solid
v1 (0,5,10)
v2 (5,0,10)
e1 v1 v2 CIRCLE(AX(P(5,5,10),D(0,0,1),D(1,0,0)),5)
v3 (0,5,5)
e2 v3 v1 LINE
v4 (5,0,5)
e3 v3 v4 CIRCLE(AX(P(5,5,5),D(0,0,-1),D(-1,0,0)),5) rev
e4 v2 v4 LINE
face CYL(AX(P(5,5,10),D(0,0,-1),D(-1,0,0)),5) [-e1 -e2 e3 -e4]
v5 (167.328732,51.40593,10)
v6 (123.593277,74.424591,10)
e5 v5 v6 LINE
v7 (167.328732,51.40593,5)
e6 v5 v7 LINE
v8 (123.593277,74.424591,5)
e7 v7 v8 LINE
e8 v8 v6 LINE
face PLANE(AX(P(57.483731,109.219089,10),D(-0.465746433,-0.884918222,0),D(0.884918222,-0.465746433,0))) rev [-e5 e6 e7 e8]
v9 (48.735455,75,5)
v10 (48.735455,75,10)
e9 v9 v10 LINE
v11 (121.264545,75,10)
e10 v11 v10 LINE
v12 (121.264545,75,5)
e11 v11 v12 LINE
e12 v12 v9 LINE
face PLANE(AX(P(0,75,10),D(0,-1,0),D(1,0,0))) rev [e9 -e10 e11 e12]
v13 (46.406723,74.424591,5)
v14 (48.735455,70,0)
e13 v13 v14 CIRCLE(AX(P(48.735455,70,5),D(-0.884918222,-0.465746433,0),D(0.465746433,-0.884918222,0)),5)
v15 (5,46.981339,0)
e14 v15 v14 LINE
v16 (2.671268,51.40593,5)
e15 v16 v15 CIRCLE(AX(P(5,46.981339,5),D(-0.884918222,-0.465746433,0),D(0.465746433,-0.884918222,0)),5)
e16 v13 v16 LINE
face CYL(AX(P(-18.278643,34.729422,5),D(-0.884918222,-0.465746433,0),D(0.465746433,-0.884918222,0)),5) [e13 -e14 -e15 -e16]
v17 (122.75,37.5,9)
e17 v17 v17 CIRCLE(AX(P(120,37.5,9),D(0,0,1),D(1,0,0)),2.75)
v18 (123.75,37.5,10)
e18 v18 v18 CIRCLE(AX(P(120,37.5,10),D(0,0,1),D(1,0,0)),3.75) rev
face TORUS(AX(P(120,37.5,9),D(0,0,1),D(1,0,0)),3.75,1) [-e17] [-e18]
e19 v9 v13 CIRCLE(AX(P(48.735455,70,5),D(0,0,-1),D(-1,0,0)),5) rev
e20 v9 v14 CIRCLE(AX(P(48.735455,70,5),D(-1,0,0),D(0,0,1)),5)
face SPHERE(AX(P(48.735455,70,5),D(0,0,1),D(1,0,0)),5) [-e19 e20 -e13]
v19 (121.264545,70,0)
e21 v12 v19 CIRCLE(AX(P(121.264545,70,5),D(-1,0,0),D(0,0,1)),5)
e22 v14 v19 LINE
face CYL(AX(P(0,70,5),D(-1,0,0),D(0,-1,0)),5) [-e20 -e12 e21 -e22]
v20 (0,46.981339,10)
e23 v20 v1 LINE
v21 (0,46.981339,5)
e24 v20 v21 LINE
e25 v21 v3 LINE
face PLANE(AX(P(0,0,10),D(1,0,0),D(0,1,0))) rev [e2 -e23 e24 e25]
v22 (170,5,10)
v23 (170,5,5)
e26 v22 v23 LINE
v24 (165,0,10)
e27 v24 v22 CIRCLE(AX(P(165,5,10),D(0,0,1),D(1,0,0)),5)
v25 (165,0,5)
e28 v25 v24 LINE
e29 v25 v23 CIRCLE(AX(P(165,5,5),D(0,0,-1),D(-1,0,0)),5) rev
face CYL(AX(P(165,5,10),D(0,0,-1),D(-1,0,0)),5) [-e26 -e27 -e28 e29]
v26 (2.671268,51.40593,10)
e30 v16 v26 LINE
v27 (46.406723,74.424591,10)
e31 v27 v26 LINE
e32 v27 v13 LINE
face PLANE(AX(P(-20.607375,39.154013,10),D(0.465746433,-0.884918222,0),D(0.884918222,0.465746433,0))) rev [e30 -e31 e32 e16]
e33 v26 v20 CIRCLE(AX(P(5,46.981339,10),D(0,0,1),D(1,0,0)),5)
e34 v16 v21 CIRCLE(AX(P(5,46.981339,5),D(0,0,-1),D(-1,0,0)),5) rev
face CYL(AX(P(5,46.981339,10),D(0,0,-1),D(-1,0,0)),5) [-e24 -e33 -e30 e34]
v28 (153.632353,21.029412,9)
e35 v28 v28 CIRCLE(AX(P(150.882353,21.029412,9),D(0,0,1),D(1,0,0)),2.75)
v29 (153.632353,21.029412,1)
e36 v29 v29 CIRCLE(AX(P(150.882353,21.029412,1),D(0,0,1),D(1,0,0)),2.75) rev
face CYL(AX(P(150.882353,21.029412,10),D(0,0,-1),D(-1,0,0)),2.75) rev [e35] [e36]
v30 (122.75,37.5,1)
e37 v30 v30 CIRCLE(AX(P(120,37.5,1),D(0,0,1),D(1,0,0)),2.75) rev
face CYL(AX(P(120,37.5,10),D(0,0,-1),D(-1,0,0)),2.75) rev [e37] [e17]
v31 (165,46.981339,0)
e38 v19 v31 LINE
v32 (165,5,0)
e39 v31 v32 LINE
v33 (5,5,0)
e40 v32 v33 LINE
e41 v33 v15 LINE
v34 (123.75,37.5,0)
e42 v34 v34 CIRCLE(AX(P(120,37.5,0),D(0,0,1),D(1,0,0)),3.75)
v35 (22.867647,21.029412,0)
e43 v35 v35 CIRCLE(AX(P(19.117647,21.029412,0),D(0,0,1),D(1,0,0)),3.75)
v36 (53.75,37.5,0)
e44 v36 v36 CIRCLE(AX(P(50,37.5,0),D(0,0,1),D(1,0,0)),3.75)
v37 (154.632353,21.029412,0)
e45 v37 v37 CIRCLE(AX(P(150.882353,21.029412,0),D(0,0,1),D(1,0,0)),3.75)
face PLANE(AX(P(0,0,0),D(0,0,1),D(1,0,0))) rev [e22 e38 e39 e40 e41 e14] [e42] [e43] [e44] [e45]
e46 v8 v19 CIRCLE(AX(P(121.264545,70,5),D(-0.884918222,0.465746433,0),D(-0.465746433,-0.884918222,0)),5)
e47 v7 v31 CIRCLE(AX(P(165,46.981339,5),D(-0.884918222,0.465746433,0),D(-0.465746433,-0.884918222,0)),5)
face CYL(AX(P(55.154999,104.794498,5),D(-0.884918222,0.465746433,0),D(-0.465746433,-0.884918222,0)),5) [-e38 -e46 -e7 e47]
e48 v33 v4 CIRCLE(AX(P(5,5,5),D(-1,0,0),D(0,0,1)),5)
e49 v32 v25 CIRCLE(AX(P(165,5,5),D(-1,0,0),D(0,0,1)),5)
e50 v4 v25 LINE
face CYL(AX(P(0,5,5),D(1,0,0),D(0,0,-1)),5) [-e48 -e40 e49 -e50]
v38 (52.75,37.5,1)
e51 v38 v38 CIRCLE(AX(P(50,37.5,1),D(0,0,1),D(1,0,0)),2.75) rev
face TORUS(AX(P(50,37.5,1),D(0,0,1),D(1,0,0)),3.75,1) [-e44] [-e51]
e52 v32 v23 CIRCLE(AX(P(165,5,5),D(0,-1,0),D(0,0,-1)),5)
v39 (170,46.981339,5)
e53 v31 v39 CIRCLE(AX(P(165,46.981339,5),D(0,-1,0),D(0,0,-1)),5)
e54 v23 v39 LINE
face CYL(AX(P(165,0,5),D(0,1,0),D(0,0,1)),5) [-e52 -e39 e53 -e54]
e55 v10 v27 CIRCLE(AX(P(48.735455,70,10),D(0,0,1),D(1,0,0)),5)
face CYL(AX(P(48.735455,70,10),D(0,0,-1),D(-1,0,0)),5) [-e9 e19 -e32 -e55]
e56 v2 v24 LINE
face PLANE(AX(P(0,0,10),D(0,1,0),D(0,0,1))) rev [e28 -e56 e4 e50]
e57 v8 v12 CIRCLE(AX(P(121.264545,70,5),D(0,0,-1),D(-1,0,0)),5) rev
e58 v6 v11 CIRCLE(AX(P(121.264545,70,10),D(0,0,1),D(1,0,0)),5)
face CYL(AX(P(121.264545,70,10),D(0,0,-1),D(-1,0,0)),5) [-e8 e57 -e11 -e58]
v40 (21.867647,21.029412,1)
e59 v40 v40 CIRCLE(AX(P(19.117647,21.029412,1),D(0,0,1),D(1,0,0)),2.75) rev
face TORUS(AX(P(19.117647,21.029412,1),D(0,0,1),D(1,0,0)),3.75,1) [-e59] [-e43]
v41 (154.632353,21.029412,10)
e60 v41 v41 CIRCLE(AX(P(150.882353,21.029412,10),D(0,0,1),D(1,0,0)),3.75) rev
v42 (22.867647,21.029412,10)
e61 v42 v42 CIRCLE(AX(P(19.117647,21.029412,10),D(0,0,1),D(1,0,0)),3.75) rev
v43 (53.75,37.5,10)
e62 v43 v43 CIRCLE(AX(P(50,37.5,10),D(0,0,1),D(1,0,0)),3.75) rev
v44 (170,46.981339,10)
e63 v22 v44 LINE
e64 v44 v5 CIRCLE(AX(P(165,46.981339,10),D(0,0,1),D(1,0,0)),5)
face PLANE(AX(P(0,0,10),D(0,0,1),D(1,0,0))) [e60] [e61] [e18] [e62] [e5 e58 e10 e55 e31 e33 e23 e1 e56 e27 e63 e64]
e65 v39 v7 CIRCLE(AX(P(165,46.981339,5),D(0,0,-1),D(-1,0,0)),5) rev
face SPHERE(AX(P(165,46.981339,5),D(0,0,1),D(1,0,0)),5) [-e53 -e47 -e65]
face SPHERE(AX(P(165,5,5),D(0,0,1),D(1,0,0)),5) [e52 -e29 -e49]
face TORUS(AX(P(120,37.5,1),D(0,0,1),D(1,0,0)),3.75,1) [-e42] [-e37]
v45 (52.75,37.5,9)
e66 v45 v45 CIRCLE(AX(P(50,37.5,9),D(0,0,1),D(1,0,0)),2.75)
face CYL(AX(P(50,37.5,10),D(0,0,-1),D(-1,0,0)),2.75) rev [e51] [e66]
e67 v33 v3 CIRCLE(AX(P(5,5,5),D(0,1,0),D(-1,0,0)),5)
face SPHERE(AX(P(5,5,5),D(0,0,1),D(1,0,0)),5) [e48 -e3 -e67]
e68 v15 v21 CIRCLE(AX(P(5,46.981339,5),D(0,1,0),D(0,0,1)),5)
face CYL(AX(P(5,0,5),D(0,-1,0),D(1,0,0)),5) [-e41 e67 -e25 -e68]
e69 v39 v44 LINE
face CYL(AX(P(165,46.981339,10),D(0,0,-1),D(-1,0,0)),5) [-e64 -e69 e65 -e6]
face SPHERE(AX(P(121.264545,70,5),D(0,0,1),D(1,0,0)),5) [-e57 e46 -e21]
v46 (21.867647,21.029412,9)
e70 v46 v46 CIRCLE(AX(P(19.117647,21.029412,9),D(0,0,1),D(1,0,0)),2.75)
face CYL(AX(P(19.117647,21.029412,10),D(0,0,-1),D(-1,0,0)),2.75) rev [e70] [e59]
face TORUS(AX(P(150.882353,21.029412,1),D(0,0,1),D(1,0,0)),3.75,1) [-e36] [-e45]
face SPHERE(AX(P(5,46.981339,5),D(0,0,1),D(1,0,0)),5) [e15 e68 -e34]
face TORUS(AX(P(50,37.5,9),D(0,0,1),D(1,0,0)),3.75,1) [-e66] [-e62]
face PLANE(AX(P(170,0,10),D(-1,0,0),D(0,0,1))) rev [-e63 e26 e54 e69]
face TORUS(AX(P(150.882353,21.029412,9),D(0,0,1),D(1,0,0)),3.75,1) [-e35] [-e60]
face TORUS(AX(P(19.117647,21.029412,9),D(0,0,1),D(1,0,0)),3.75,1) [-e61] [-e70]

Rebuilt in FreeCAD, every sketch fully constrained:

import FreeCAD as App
import Part
import Sketcher


def edges_at(feature, points):
    """Names of the edges that pass closest to the given points."""
    edges = feature.Shape.Edges
    near = lambda p: min(range(len(edges)), key=lambda i: edges[i].distToShape(Part.Vertex(*p))[0])
    return sorted({f"Edge{near(p) + 1}" for p in points})

doc = App.newDocument("Part")
body = doc.addObject("PartDesign::Body", "Body")

# Sketch on XY plane
sketch1 = body.newObject("Sketcher::SketchObject", "Sketch")
sketch1.AttachmentSupport = (doc.getObject("XY_Plane"), [""])
sketch1.MapMode = "FlatFace"
sketch1.addGeometry(Part.LineSegment(App.Vector(0, 50, 0), App.Vector(0, 0, 0)), False)
sketch1.addGeometry(Part.LineSegment(App.Vector(0, 0, 0), App.Vector(170, 0, 0)), False)
sketch1.addGeometry(Part.LineSegment(App.Vector(170, 0, 0), App.Vector(170, 50, 0)), False)
sketch1.addGeometry(Part.LineSegment(App.Vector(170, 50, 0), App.Vector(122.5, 75, 0)), False)
sketch1.addGeometry(Part.LineSegment(App.Vector(122.5, 75, 0), App.Vector(47.5, 75, 0)), False)
sketch1.addGeometry(Part.LineSegment(App.Vector(47.5, 75, 0), App.Vector(0, 50, 0)), False)
sketch1.addGeometry(Part.Circle(App.Vector(19.1, 21, 0), App.Vector(0, 0, 1), 2.8), False)
sketch1.addGeometry(Part.Circle(App.Vector(150.9, 21, 0), App.Vector(0, 0, 1), 2.8), False)
sketch1.addGeometry(Part.Circle(App.Vector(50, 37.5, 0), App.Vector(0, 0, 1), 2.8), False)
sketch1.addGeometry(Part.Circle(App.Vector(120, 37.5, 0), App.Vector(0, 0, 1), 2.8), False)
sketch1.addConstraint(Sketcher.Constraint("Coincident", 0, 2, 1, 1))
sketch1.addConstraint(Sketcher.Constraint("Coincident", 1, 2, 2, 1))
sketch1.addConstraint(Sketcher.Constraint("Coincident", 2, 2, 3, 1))
sketch1.addConstraint(Sketcher.Constraint("Coincident", 3, 2, 4, 1))
sketch1.addConstraint(Sketcher.Constraint("Coincident", 4, 2, 5, 1))
sketch1.addConstraint(Sketcher.Constraint("Coincident", 5, 2, 0, 1))
sketch1.addConstraint(Sketcher.Constraint("Vertical", 0))
sketch1.addConstraint(Sketcher.Constraint("Horizontal", 1))
sketch1.addConstraint(Sketcher.Constraint("Vertical", 2))
sketch1.addConstraint(Sketcher.Constraint("Horizontal", 4))
sketch1.addConstraint(Sketcher.Constraint("Coincident", 0, 2, -1, 1))
sketch1.addConstraint(Sketcher.Constraint("Equal", 6, 7))
sketch1.addConstraint(Sketcher.Constraint("Equal", 7, 8))
sketch1.addConstraint(Sketcher.Constraint("Equal", 8, 9))
sketch1.addConstraint(Sketcher.Constraint("Horizontal", 6, 3, 7, 3))
sketch1.addConstraint(Sketcher.Constraint("Horizontal", 8, 3, 9, 3))
sketch1.addConstraint(Sketcher.Constraint("Horizontal", 2, 2, 5, 2))
sketch1.addConstraint(Sketcher.Constraint("Equal", 3, 5))
sketch1.addConstraint(Sketcher.Constraint("Diameter", 6, 5.5))
sketch1.addConstraint(Sketcher.Constraint("DistanceX", 1, 1, 1, 2, 170.0))
sketch1.addConstraint(Sketcher.Constraint("DistanceX", 4, 2, 4, 1, 75.0))
sketch1.addConstraint(Sketcher.Constraint("DistanceY", 0, 2, 0, 1, 50.0))
sketch1.addConstraint(Sketcher.Constraint("DistanceX", -1, 1, 8, 3, 50.0))
sketch1.addConstraint(Sketcher.Constraint("DistanceX", -1, 1, 9, 3, 120.0))
sketch1.addConstraint(Sketcher.Constraint("DistanceY", -1, 1, 3, 2, 75.0))
sketch1.addConstraint(Sketcher.Constraint("DistanceY", -1, 1, 8, 3, 37.5))
sketch1.addConstraint(Sketcher.Constraint("DistanceY", -1, 1, 6, 3, 21.029412))
sketch1.addConstraint(Sketcher.Constraint("DistanceX", -1, 1, 6, 3, 19.117647))
sketch1.addConstraint(Sketcher.Constraint("DistanceX", -1, 1, 7, 3, 150.882353))
pad1 = body.newObject("PartDesign::Pad", "Pad")
pad1.Profile = sketch1
pad1.Length = 10
doc.recompute()

fillet = body.newObject("PartDesign::Fillet", "Fillet")
fillet.Base = (pad1, edges_at(pad1, [
    (170, 0, 5),
    (0, 0, 5),
    (0, 50, 5),
    (47.5, 75, 5),
    (122.5, 75, 5),
    (170, 50, 5),
]))
fillet.Radius = 5
doc.recompute()

fillet2 = body.newObject("PartDesign::Fillet", "Fillet001")
fillet2.Base = (fillet, edges_at(fillet, [
    (170, 25.991, 0),
    (85, 0, 0),
    (0, 25.991, 0),
    (24.539, 62.915, 0),
    (85, 75, 0),
    (145.461, 62.915, 0),
    (0.72, 49.566, 0),
    (47.536, 74.854, 0),
    (122.464, 74.854, 0),
    (169.28, 49.566, 0),
    (1.464, 1.464, 0),
    (168.536, 1.464, 0),
]))
fillet2.Radius = 5
doc.recompute()

fillet3 = body.newObject("PartDesign::Fillet", "Fillet002")
fillet3.Base = (fillet2, edges_at(fillet2, [
    (148.132, 21.029, 10),
    (47.25, 37.5, 0),
    (117.25, 37.5, 0),
    (148.132, 21.029, 0),
    (16.368, 21.029, 0),
    (117.25, 37.5, 10),
    (47.25, 37.5, 10),
    (16.368, 21.029, 10),
]))
fillet3.Radius = 1

doc.recompute()
